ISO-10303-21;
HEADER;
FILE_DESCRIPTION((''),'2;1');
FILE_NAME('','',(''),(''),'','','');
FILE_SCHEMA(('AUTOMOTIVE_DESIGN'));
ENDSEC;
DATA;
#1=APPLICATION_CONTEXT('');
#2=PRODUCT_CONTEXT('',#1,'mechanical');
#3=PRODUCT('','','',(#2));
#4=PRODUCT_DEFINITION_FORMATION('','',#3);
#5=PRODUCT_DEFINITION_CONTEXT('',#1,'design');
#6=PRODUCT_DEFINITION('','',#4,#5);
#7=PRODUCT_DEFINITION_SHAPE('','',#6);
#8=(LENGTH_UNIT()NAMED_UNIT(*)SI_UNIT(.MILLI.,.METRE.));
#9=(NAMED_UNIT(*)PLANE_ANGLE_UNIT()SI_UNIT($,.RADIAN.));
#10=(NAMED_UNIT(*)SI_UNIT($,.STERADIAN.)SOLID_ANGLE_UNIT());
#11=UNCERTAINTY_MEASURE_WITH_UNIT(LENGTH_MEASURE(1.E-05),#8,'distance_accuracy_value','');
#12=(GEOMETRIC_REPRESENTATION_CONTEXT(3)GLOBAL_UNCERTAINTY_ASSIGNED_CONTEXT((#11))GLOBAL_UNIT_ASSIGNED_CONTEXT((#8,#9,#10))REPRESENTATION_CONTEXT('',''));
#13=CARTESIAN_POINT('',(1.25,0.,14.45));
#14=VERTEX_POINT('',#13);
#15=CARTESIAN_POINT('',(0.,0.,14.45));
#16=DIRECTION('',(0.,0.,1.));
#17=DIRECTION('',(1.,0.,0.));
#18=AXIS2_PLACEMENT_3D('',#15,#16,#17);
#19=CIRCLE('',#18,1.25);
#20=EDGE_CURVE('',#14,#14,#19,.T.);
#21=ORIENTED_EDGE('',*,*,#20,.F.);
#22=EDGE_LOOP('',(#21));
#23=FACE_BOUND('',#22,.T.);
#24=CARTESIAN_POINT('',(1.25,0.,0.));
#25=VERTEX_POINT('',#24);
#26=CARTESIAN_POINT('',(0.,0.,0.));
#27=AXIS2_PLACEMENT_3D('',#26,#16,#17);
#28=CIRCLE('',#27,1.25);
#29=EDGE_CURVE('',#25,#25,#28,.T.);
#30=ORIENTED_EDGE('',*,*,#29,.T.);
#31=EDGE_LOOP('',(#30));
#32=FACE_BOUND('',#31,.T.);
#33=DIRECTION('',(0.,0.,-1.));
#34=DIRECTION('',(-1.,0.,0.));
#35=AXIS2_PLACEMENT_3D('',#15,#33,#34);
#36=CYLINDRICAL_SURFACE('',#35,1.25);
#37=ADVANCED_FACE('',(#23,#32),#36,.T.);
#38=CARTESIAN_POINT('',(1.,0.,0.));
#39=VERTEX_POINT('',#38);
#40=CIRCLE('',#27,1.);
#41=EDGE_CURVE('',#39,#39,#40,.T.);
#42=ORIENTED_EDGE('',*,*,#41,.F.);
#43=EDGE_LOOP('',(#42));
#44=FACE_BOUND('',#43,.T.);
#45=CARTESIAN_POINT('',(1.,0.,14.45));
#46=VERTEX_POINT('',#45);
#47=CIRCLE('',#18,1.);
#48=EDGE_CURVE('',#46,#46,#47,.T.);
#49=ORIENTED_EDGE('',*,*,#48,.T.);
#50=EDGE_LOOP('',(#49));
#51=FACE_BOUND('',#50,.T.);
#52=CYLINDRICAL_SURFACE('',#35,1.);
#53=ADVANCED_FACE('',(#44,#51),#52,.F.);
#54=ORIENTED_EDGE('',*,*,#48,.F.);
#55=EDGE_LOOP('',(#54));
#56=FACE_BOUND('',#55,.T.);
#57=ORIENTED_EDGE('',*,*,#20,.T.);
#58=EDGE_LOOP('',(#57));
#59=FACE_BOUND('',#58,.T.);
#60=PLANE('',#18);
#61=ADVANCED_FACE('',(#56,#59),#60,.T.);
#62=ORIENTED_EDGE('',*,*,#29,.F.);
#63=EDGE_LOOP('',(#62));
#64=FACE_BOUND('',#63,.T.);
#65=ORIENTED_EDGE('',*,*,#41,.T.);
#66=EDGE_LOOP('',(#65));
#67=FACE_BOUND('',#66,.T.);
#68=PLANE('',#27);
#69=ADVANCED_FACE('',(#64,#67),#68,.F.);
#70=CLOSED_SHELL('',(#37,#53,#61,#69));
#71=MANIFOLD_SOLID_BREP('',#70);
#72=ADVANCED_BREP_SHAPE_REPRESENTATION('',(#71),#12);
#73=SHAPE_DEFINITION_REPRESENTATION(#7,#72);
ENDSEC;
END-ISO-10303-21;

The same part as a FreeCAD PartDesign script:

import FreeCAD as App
import Part
import Sketcher

V = App.Vector
Q = App.Units.Quantity

doc = App.newDocument("Part")
body = doc.addObject("PartDesign::Body", "Body")

sketch1 = body.newObject("Sketcher::SketchObject", "Sketch")
sketch1.AttachmentSupport = (doc.getObject("XY_Plane"), [""])
sketch1.MapMode = "FlatFace"
sketch1.addGeometry([
    Part.Circle(V(0, 0, 0), V(0, 0, 1), 1.2),
    Part.Circle(V(0, 0, 0), V(0, 0, 1), 1),
], False)
sketch1.addConstraint([
    Sketcher.Constraint("Coincident", 0, 3, -1, 1),
    Sketcher.Constraint("Coincident", 1, 3, -1, 1),
    Sketcher.Constraint("Diameter", 1, Q("2 mm")),
    Sketcher.Constraint("Diameter", 0, Q("2.5 mm")),
])
pad1 = body.newObject("PartDesign::Pad", "Pad")
pad1.Profile = sketch1
pad1.Length = 14.45

doc.recompute()
